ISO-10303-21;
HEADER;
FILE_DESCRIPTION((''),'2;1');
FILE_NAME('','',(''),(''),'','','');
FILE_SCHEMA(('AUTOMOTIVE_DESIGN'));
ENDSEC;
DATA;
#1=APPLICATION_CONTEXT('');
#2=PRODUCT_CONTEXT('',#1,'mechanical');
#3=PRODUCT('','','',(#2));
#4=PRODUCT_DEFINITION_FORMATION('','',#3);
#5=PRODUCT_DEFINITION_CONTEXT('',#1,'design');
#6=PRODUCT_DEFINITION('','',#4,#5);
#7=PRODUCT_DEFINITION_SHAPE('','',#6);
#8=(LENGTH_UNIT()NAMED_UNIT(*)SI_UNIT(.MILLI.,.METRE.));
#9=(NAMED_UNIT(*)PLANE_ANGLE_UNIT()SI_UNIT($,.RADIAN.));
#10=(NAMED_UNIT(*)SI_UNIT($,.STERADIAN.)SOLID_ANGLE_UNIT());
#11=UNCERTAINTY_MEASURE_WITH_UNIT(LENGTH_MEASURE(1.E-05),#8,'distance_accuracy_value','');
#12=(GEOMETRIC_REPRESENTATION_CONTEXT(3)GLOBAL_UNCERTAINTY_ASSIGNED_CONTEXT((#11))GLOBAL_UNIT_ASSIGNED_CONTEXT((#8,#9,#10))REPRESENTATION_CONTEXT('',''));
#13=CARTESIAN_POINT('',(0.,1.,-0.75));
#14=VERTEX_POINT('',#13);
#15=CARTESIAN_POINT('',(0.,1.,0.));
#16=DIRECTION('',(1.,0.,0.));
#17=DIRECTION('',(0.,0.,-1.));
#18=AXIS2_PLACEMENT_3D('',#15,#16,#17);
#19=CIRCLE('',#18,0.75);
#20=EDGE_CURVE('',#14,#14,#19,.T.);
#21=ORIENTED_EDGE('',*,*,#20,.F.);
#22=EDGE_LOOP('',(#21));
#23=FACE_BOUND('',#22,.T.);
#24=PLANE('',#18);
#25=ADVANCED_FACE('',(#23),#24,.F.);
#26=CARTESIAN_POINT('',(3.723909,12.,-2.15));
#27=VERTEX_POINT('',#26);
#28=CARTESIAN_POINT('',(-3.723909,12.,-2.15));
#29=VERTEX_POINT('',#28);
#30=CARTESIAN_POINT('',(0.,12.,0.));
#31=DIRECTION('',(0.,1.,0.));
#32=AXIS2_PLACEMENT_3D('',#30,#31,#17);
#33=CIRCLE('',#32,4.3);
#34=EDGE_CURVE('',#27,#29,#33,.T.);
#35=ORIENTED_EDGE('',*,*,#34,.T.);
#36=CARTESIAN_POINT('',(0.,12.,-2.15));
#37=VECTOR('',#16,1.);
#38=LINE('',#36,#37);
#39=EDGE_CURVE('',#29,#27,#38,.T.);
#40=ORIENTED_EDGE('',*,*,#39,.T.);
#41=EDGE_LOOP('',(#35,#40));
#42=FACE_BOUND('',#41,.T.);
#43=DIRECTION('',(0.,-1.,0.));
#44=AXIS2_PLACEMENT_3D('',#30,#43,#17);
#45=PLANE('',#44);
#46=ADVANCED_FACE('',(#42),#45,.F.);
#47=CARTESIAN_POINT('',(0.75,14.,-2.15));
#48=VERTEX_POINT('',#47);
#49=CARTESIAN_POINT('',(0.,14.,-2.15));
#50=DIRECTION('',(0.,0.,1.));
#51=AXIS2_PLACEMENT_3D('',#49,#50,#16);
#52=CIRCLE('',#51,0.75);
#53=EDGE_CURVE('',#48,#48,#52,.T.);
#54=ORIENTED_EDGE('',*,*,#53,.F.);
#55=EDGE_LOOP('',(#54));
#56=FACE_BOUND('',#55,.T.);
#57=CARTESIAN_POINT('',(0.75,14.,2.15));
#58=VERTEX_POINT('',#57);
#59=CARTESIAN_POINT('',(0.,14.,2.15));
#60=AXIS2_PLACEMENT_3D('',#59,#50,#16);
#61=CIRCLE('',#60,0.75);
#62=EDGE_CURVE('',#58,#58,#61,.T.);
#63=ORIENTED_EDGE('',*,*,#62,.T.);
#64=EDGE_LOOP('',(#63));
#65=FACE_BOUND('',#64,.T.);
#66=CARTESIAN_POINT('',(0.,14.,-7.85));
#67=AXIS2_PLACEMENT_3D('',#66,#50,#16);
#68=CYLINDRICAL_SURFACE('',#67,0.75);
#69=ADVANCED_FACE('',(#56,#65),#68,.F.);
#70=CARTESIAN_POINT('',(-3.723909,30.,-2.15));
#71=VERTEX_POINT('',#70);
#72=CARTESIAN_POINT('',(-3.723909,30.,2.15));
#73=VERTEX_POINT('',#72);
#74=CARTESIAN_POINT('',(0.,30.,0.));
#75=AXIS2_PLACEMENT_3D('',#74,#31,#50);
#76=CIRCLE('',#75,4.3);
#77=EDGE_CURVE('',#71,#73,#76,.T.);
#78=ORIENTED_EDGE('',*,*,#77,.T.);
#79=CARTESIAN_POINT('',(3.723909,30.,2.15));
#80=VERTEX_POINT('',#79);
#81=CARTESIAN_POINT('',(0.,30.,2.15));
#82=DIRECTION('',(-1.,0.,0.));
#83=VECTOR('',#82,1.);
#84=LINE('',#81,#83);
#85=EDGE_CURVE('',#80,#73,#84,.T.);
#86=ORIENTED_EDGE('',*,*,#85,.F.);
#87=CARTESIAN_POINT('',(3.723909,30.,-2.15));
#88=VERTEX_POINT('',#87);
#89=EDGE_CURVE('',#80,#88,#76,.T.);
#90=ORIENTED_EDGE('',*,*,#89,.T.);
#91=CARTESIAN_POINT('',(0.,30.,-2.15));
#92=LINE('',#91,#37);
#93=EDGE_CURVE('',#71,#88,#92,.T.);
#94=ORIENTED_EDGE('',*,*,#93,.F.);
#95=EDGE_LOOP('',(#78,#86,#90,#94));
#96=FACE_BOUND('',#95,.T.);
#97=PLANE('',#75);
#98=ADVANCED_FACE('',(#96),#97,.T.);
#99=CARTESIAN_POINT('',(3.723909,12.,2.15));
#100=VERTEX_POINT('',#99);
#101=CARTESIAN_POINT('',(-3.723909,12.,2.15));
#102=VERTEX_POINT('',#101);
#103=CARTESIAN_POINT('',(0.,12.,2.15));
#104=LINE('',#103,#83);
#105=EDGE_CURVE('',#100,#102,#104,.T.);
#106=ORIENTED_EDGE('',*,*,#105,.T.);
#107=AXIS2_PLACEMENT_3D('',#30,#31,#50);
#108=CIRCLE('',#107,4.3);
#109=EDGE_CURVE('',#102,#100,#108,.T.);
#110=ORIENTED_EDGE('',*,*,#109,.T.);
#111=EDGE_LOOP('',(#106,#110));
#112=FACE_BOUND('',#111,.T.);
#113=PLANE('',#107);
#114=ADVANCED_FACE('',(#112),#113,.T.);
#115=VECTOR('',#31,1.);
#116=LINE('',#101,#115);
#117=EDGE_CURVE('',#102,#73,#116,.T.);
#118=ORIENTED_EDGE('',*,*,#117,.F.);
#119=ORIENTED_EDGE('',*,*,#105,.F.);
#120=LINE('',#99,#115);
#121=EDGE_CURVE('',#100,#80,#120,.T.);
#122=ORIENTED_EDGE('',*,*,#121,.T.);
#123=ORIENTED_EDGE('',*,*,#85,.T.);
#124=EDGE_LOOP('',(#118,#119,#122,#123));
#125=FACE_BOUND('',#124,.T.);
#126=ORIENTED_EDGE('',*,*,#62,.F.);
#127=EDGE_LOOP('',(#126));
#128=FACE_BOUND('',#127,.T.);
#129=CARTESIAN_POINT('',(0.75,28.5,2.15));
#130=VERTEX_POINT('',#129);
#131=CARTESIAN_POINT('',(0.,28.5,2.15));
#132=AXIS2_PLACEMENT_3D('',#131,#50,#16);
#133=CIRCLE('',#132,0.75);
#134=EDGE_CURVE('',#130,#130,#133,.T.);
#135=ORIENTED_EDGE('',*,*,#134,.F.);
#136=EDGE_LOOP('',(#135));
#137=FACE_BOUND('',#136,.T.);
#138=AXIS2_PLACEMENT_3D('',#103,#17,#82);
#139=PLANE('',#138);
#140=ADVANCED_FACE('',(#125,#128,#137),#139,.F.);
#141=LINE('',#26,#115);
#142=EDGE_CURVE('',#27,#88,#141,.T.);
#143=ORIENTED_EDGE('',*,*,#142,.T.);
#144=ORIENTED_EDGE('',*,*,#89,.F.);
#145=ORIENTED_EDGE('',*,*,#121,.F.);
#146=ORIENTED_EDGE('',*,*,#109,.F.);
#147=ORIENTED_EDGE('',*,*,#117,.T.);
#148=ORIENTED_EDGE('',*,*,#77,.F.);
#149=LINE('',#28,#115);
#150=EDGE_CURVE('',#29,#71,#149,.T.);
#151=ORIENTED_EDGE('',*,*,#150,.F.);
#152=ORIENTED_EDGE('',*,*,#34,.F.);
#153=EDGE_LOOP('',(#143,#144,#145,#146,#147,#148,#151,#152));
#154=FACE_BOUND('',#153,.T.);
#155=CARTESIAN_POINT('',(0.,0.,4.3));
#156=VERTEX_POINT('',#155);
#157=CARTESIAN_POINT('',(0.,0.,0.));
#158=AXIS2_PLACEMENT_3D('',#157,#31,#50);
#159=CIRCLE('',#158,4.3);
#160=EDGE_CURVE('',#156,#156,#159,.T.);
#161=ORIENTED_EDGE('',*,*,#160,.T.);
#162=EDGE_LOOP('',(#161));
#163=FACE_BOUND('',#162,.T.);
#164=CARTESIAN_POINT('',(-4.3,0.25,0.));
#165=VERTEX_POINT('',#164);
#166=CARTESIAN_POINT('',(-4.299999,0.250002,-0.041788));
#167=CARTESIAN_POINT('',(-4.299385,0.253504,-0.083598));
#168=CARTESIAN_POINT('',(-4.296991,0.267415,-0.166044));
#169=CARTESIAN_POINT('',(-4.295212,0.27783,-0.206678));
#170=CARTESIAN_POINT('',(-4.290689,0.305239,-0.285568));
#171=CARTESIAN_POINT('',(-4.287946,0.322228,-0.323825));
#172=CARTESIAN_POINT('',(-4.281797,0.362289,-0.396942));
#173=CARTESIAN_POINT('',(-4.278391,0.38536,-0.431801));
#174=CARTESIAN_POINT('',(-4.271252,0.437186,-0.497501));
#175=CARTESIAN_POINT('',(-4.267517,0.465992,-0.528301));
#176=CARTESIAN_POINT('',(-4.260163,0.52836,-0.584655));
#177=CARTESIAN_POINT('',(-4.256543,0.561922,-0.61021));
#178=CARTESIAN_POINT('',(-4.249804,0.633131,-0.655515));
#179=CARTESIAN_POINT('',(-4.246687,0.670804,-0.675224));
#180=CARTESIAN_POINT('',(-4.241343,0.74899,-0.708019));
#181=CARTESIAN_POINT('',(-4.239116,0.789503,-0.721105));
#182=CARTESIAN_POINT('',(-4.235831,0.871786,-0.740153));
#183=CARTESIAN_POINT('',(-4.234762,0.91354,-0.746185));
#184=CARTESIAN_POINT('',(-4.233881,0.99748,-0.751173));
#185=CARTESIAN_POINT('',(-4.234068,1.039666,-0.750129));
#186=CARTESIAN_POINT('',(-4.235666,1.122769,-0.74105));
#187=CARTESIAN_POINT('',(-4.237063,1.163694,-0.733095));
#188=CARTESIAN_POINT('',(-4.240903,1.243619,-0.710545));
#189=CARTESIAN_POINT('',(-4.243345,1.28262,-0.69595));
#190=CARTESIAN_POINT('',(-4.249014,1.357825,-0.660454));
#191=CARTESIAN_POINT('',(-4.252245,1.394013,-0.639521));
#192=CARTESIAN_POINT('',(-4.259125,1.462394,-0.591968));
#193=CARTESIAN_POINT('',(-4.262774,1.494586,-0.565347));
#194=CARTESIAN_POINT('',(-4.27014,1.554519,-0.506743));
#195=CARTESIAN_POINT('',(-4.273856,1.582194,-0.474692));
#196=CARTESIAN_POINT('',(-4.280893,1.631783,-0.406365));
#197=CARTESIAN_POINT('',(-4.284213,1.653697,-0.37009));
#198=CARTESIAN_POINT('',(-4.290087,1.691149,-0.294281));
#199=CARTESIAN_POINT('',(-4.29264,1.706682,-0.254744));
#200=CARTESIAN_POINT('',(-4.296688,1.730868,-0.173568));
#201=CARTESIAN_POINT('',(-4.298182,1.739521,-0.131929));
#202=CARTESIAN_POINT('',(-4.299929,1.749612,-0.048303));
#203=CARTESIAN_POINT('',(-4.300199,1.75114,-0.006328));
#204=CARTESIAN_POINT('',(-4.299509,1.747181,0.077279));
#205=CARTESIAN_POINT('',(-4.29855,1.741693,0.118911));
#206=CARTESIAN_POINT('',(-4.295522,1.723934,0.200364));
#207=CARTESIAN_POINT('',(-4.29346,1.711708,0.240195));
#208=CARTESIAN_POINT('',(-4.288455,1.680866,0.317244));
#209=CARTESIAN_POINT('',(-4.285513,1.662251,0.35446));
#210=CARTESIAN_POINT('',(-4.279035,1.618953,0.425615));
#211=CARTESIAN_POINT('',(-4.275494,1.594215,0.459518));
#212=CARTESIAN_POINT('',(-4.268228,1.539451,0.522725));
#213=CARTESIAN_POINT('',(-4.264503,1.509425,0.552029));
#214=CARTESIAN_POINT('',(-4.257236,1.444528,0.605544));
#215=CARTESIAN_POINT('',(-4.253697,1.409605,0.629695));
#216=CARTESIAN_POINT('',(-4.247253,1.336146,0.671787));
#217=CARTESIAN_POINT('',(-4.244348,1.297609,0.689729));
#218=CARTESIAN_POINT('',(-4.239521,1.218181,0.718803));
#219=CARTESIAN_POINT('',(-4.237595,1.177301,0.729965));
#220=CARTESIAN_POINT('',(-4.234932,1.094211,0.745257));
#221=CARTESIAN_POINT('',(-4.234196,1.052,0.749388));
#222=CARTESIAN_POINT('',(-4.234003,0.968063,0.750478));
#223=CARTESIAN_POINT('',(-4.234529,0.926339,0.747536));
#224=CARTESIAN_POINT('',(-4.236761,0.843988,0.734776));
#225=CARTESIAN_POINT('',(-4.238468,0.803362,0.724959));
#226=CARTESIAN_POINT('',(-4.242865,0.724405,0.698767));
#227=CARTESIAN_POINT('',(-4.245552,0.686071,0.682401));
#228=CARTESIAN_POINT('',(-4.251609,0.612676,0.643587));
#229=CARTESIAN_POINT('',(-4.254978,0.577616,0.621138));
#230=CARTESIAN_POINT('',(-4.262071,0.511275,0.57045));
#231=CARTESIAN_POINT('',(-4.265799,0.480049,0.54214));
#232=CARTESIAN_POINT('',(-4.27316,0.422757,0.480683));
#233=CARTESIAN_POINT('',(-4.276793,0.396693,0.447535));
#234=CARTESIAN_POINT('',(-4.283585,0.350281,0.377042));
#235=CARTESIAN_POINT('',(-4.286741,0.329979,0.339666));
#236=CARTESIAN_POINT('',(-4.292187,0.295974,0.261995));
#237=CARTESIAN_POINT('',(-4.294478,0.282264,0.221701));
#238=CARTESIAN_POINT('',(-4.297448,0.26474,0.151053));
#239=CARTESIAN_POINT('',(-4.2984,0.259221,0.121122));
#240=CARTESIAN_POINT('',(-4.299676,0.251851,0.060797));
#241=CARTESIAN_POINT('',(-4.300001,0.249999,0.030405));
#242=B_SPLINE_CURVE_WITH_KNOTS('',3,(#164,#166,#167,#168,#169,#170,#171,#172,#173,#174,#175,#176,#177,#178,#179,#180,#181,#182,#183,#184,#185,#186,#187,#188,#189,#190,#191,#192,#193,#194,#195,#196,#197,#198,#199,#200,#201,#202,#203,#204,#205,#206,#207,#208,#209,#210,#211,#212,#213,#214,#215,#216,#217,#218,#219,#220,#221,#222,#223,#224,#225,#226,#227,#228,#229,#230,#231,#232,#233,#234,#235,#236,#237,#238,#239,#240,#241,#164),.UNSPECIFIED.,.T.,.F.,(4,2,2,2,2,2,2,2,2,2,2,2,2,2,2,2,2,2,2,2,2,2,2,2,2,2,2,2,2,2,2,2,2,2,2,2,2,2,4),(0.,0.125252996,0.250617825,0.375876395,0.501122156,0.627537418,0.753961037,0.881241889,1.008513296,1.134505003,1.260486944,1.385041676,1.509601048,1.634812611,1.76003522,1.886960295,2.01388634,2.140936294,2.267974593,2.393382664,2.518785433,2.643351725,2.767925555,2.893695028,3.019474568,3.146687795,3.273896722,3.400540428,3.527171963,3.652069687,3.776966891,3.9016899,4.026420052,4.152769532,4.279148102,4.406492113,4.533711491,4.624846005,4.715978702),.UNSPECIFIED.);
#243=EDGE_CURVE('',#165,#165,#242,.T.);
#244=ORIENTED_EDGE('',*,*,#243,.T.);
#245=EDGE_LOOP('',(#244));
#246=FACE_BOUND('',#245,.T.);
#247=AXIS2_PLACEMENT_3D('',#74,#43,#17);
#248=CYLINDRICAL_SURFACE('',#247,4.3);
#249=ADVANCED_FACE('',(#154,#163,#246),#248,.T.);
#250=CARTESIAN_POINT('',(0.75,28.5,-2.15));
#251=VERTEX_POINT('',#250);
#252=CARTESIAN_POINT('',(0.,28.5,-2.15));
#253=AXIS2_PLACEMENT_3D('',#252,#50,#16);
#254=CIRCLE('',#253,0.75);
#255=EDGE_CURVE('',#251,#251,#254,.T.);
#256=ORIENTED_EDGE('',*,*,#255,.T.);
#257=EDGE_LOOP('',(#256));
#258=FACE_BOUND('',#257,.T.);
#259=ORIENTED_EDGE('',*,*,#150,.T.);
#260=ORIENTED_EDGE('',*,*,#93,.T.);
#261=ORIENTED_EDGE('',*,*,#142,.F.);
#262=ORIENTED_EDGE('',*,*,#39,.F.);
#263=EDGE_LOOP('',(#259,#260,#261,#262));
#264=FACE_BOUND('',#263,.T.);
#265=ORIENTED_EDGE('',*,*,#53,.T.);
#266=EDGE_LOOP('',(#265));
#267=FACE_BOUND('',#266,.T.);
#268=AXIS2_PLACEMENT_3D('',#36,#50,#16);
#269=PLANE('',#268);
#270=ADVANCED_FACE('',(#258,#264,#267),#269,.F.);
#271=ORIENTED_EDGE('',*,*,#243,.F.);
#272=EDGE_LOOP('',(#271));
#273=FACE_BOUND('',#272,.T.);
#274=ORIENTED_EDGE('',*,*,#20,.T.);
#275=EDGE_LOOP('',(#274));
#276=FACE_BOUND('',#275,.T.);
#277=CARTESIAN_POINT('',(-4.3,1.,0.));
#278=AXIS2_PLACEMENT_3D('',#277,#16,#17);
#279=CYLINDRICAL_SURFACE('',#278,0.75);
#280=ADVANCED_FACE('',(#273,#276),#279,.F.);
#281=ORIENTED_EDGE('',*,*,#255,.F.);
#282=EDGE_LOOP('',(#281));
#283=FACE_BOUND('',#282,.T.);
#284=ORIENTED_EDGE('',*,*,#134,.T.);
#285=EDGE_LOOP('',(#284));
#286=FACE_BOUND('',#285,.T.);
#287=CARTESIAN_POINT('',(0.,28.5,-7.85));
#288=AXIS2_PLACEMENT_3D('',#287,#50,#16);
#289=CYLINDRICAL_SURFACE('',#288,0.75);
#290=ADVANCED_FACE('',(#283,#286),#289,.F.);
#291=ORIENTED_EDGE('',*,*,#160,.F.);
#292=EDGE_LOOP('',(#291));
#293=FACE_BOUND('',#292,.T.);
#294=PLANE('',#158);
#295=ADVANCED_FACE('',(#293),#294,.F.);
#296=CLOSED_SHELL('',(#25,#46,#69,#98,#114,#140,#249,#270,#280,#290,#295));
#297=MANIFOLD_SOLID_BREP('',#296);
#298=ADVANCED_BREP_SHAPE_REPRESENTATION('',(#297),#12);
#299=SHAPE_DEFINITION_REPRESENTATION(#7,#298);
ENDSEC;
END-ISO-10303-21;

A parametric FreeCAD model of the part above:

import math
import FreeCAD as App
import Part
import Sketcher
from FreeCAD import Vector
Q = App.Units.Quantity

doc = App.newDocument("Part")
params = doc.addObject("Spreadsheet::Sheet", "Params")
for row, (alias, value) in enumerate([
    ("sketch1_diameter", "8.6 mm"),
    ("pad1_length", "30 mm"),
    ("sketch2_radius", "4.3 mm"),
    ("pocket1_length", "18 mm"),
    ("sketch3_diameter", "1.5 mm"),
    ("pocket2_length", "10 mm"),
    ("sketch4_diameter", "1.5 mm"),
    ("sketch5_diameter", "1.5 mm"),
    ("pocket4_length", "10 mm"),
], start=1):
    params.set(f"A{row}", alias)
    params.set(f"B{row}", "=" + value)
    params.setAlias(f"B{row}", alias)

body = doc.addObject("PartDesign::Body", "Body")

# Sketch on XZ plane
sketch1 = body.newObject("Sketcher::SketchObject", "Sketch")
sketch1.AttachmentSupport = (doc.getObject("XZ_Plane"), [""])
sketch1.MapMode = "FlatFace"
sketch1.addGeometry(Part.Circle(Vector(0, 0, 0), Vector(0, 0, 1), 4.3), False)
sketch1.addConstraint(Sketcher.Constraint("Coincident", 0, 3, -1, 1))
sketch1.addConstraint(Sketcher.Constraint("Diameter", 0, Q("8.6 mm")))
sketch1.setExpression("Constraints[1]", "Params.sketch1_diameter")
pad1 = body.newObject("PartDesign::Pad", "Pad")
pad1.Profile = sketch1
pad1.setExpression("Length", "Params.pad1_length")
pad1.Reversed = True

# Sketch on XZ plane
sketch2 = body.newObject("Sketcher::SketchObject", "Sketch001")
sketch2.AttachmentSupport = (doc.getObject("XZ_Plane"), [""])
sketch2.MapMode = "FlatFace"
sketch2.AttachmentOffset = App.Placement(Vector(0, 0, -30), App.Rotation())
sketch2.addGeometry(Part.ArcOfCircle(Part.Circle(Vector(0, 0, 0), Vector(0, 0, 1), 4.3), math.radians(-150), math.radians(-30)), False)
sketch2.addGeometry(Part.LineSegment(Vector(-3.7, -2.1, 0), Vector(3.7, -2.1, 0)), False)
sketch2.addGeometry(Part.ArcOfCircle(Part.Circle(Vector(0, 0, 0), Vector(0, 0, 1), 4.3), math.radians(30), math.radians(150)), False)
sketch2.addGeometry(Part.LineSegment(Vector(3.7, 2.1, 0), Vector(-3.7, 2.1, 0)), False)
sketch2.addConstraint(Sketcher.Constraint("Coincident", 0, 1, 1, 1))
sketch2.addConstraint(Sketcher.Constraint("Coincident", 1, 2, 0, 2))
sketch2.addConstraint(Sketcher.Constraint("Coincident", 2, 1, 3, 1))
sketch2.addConstraint(Sketcher.Constraint("Coincident", 3, 2, 2, 2))
sketch2.addConstraint(Sketcher.Constraint("Horizontal", 1))
sketch2.addConstraint(Sketcher.Constraint("Horizontal", 3))
sketch2.addConstraint(Sketcher.Constraint("Coincident", 0, 3, -1, 1))
sketch2.addConstraint(Sketcher.Constraint("Coincident", 2, 3, -1, 1))
sketch2.addConstraint(Sketcher.Constraint("Equal", 0, 2))
sketch2.addConstraint(Sketcher.Constraint("Vertical", 1, 2, 2, 1))
sketch2.addConstraint(Sketcher.Constraint("Radius", 0, Q("4.3 mm")))
sketch2.addConstraint(Sketcher.Constraint("DistanceY", 1, 2, 2, 1, Q("4.3 mm")))
sketch2.setExpression("Constraints[10]", "Params.sketch2_radius")
pocket1 = body.newObject("PartDesign::Pocket", "Pocket")
pocket1.Profile = sketch2
pocket1.setExpression("Length", "Params.pocket1_length")
pocket1.Reversed = True

# Sketch on XY plane
sketch3 = body.newObject("Sketcher::SketchObject", "Sketch002")
sketch3.AttachmentSupport = (doc.getObject("XY_Plane"), [""])
sketch3.MapMode = "FlatFace"
sketch3.AttachmentOffset = App.Placement(Vector(0, 0, 2.15), App.Rotation())
sketch3.addGeometry(Part.Circle(Vector(0, 14, 0), Vector(0, 0, 1), 0.8), False)
sketch3.addConstraint(Sketcher.Constraint("PointOnObject", 0, 3, -2))
sketch3.addConstraint(Sketcher.Constraint("Diameter", 0, Q("1.5 mm")))
sketch3.addConstraint(Sketcher.Constraint("DistanceY", -1, 1, 0, 3, Q("14 mm")))
sketch3.setExpression("Constraints[1]", "Params.sketch3_diameter")
pocket2 = body.newObject("PartDesign::Pocket", "Pocket001")
pocket2.Profile = sketch3
pocket2.setExpression("Length", "Params.pocket2_length")

# Sketch on YZ plane
sketch4 = body.newObject("Sketcher::SketchObject", "Sketch003")
sketch4.AttachmentSupport = (doc.getObject("YZ_Plane"), [""])
sketch4.MapMode = "FlatFace"
sketch4.addGeometry(Part.Circle(Vector(1, 0, 0), Vector(0, 0, 1), 0.8), False)
sketch4.addConstraint(Sketcher.Constraint("PointOnObject", 0, 3, -1))
sketch4.addConstraint(Sketcher.Constraint("Diameter", 0, Q("1.5 mm")))
sketch4.addConstraint(Sketcher.Constraint("DistanceX", -1, 1, 0, 3, Q("1 mm")))
sketch4.setExpression("Constraints[1]", "Params.sketch4_diameter")
pocket3 = body.newObject("PartDesign::Pocket", "Pocket002")
pocket3.Profile = sketch4
pocket3.Type = "ThroughAll"

# Sketch on XY plane
sketch5 = body.newObject("Sketcher::SketchObject", "Sketch004")
sketch5.AttachmentSupport = (doc.getObject("XY_Plane"), [""])
sketch5.MapMode = "FlatFace"
sketch5.AttachmentOffset = App.Placement(Vector(0, 0, 2.15), App.Rotation())
sketch5.addGeometry(Part.Circle(Vector(0, 28.5, 0), Vector(0, 0, 1), 0.8), False)
sketch5.addConstraint(Sketcher.Constraint("PointOnObject", 0, 3, -2))
sketch5.addConstraint(Sketcher.Constraint("Diameter", 0, Q("1.5 mm")))
sketch5.addConstraint(Sketcher.Constraint("DistanceY", -1, 1, 0, 3, Q("28.5 mm")))
sketch5.setExpression("Constraints[1]", "Params.sketch5_diameter")
pocket4 = body.newObject("PartDesign::Pocket", "Pocket003")
pocket4.Profile = sketch5
pocket4.setExpression("Length", "Params.pocket4_length")

doc.recompute()
